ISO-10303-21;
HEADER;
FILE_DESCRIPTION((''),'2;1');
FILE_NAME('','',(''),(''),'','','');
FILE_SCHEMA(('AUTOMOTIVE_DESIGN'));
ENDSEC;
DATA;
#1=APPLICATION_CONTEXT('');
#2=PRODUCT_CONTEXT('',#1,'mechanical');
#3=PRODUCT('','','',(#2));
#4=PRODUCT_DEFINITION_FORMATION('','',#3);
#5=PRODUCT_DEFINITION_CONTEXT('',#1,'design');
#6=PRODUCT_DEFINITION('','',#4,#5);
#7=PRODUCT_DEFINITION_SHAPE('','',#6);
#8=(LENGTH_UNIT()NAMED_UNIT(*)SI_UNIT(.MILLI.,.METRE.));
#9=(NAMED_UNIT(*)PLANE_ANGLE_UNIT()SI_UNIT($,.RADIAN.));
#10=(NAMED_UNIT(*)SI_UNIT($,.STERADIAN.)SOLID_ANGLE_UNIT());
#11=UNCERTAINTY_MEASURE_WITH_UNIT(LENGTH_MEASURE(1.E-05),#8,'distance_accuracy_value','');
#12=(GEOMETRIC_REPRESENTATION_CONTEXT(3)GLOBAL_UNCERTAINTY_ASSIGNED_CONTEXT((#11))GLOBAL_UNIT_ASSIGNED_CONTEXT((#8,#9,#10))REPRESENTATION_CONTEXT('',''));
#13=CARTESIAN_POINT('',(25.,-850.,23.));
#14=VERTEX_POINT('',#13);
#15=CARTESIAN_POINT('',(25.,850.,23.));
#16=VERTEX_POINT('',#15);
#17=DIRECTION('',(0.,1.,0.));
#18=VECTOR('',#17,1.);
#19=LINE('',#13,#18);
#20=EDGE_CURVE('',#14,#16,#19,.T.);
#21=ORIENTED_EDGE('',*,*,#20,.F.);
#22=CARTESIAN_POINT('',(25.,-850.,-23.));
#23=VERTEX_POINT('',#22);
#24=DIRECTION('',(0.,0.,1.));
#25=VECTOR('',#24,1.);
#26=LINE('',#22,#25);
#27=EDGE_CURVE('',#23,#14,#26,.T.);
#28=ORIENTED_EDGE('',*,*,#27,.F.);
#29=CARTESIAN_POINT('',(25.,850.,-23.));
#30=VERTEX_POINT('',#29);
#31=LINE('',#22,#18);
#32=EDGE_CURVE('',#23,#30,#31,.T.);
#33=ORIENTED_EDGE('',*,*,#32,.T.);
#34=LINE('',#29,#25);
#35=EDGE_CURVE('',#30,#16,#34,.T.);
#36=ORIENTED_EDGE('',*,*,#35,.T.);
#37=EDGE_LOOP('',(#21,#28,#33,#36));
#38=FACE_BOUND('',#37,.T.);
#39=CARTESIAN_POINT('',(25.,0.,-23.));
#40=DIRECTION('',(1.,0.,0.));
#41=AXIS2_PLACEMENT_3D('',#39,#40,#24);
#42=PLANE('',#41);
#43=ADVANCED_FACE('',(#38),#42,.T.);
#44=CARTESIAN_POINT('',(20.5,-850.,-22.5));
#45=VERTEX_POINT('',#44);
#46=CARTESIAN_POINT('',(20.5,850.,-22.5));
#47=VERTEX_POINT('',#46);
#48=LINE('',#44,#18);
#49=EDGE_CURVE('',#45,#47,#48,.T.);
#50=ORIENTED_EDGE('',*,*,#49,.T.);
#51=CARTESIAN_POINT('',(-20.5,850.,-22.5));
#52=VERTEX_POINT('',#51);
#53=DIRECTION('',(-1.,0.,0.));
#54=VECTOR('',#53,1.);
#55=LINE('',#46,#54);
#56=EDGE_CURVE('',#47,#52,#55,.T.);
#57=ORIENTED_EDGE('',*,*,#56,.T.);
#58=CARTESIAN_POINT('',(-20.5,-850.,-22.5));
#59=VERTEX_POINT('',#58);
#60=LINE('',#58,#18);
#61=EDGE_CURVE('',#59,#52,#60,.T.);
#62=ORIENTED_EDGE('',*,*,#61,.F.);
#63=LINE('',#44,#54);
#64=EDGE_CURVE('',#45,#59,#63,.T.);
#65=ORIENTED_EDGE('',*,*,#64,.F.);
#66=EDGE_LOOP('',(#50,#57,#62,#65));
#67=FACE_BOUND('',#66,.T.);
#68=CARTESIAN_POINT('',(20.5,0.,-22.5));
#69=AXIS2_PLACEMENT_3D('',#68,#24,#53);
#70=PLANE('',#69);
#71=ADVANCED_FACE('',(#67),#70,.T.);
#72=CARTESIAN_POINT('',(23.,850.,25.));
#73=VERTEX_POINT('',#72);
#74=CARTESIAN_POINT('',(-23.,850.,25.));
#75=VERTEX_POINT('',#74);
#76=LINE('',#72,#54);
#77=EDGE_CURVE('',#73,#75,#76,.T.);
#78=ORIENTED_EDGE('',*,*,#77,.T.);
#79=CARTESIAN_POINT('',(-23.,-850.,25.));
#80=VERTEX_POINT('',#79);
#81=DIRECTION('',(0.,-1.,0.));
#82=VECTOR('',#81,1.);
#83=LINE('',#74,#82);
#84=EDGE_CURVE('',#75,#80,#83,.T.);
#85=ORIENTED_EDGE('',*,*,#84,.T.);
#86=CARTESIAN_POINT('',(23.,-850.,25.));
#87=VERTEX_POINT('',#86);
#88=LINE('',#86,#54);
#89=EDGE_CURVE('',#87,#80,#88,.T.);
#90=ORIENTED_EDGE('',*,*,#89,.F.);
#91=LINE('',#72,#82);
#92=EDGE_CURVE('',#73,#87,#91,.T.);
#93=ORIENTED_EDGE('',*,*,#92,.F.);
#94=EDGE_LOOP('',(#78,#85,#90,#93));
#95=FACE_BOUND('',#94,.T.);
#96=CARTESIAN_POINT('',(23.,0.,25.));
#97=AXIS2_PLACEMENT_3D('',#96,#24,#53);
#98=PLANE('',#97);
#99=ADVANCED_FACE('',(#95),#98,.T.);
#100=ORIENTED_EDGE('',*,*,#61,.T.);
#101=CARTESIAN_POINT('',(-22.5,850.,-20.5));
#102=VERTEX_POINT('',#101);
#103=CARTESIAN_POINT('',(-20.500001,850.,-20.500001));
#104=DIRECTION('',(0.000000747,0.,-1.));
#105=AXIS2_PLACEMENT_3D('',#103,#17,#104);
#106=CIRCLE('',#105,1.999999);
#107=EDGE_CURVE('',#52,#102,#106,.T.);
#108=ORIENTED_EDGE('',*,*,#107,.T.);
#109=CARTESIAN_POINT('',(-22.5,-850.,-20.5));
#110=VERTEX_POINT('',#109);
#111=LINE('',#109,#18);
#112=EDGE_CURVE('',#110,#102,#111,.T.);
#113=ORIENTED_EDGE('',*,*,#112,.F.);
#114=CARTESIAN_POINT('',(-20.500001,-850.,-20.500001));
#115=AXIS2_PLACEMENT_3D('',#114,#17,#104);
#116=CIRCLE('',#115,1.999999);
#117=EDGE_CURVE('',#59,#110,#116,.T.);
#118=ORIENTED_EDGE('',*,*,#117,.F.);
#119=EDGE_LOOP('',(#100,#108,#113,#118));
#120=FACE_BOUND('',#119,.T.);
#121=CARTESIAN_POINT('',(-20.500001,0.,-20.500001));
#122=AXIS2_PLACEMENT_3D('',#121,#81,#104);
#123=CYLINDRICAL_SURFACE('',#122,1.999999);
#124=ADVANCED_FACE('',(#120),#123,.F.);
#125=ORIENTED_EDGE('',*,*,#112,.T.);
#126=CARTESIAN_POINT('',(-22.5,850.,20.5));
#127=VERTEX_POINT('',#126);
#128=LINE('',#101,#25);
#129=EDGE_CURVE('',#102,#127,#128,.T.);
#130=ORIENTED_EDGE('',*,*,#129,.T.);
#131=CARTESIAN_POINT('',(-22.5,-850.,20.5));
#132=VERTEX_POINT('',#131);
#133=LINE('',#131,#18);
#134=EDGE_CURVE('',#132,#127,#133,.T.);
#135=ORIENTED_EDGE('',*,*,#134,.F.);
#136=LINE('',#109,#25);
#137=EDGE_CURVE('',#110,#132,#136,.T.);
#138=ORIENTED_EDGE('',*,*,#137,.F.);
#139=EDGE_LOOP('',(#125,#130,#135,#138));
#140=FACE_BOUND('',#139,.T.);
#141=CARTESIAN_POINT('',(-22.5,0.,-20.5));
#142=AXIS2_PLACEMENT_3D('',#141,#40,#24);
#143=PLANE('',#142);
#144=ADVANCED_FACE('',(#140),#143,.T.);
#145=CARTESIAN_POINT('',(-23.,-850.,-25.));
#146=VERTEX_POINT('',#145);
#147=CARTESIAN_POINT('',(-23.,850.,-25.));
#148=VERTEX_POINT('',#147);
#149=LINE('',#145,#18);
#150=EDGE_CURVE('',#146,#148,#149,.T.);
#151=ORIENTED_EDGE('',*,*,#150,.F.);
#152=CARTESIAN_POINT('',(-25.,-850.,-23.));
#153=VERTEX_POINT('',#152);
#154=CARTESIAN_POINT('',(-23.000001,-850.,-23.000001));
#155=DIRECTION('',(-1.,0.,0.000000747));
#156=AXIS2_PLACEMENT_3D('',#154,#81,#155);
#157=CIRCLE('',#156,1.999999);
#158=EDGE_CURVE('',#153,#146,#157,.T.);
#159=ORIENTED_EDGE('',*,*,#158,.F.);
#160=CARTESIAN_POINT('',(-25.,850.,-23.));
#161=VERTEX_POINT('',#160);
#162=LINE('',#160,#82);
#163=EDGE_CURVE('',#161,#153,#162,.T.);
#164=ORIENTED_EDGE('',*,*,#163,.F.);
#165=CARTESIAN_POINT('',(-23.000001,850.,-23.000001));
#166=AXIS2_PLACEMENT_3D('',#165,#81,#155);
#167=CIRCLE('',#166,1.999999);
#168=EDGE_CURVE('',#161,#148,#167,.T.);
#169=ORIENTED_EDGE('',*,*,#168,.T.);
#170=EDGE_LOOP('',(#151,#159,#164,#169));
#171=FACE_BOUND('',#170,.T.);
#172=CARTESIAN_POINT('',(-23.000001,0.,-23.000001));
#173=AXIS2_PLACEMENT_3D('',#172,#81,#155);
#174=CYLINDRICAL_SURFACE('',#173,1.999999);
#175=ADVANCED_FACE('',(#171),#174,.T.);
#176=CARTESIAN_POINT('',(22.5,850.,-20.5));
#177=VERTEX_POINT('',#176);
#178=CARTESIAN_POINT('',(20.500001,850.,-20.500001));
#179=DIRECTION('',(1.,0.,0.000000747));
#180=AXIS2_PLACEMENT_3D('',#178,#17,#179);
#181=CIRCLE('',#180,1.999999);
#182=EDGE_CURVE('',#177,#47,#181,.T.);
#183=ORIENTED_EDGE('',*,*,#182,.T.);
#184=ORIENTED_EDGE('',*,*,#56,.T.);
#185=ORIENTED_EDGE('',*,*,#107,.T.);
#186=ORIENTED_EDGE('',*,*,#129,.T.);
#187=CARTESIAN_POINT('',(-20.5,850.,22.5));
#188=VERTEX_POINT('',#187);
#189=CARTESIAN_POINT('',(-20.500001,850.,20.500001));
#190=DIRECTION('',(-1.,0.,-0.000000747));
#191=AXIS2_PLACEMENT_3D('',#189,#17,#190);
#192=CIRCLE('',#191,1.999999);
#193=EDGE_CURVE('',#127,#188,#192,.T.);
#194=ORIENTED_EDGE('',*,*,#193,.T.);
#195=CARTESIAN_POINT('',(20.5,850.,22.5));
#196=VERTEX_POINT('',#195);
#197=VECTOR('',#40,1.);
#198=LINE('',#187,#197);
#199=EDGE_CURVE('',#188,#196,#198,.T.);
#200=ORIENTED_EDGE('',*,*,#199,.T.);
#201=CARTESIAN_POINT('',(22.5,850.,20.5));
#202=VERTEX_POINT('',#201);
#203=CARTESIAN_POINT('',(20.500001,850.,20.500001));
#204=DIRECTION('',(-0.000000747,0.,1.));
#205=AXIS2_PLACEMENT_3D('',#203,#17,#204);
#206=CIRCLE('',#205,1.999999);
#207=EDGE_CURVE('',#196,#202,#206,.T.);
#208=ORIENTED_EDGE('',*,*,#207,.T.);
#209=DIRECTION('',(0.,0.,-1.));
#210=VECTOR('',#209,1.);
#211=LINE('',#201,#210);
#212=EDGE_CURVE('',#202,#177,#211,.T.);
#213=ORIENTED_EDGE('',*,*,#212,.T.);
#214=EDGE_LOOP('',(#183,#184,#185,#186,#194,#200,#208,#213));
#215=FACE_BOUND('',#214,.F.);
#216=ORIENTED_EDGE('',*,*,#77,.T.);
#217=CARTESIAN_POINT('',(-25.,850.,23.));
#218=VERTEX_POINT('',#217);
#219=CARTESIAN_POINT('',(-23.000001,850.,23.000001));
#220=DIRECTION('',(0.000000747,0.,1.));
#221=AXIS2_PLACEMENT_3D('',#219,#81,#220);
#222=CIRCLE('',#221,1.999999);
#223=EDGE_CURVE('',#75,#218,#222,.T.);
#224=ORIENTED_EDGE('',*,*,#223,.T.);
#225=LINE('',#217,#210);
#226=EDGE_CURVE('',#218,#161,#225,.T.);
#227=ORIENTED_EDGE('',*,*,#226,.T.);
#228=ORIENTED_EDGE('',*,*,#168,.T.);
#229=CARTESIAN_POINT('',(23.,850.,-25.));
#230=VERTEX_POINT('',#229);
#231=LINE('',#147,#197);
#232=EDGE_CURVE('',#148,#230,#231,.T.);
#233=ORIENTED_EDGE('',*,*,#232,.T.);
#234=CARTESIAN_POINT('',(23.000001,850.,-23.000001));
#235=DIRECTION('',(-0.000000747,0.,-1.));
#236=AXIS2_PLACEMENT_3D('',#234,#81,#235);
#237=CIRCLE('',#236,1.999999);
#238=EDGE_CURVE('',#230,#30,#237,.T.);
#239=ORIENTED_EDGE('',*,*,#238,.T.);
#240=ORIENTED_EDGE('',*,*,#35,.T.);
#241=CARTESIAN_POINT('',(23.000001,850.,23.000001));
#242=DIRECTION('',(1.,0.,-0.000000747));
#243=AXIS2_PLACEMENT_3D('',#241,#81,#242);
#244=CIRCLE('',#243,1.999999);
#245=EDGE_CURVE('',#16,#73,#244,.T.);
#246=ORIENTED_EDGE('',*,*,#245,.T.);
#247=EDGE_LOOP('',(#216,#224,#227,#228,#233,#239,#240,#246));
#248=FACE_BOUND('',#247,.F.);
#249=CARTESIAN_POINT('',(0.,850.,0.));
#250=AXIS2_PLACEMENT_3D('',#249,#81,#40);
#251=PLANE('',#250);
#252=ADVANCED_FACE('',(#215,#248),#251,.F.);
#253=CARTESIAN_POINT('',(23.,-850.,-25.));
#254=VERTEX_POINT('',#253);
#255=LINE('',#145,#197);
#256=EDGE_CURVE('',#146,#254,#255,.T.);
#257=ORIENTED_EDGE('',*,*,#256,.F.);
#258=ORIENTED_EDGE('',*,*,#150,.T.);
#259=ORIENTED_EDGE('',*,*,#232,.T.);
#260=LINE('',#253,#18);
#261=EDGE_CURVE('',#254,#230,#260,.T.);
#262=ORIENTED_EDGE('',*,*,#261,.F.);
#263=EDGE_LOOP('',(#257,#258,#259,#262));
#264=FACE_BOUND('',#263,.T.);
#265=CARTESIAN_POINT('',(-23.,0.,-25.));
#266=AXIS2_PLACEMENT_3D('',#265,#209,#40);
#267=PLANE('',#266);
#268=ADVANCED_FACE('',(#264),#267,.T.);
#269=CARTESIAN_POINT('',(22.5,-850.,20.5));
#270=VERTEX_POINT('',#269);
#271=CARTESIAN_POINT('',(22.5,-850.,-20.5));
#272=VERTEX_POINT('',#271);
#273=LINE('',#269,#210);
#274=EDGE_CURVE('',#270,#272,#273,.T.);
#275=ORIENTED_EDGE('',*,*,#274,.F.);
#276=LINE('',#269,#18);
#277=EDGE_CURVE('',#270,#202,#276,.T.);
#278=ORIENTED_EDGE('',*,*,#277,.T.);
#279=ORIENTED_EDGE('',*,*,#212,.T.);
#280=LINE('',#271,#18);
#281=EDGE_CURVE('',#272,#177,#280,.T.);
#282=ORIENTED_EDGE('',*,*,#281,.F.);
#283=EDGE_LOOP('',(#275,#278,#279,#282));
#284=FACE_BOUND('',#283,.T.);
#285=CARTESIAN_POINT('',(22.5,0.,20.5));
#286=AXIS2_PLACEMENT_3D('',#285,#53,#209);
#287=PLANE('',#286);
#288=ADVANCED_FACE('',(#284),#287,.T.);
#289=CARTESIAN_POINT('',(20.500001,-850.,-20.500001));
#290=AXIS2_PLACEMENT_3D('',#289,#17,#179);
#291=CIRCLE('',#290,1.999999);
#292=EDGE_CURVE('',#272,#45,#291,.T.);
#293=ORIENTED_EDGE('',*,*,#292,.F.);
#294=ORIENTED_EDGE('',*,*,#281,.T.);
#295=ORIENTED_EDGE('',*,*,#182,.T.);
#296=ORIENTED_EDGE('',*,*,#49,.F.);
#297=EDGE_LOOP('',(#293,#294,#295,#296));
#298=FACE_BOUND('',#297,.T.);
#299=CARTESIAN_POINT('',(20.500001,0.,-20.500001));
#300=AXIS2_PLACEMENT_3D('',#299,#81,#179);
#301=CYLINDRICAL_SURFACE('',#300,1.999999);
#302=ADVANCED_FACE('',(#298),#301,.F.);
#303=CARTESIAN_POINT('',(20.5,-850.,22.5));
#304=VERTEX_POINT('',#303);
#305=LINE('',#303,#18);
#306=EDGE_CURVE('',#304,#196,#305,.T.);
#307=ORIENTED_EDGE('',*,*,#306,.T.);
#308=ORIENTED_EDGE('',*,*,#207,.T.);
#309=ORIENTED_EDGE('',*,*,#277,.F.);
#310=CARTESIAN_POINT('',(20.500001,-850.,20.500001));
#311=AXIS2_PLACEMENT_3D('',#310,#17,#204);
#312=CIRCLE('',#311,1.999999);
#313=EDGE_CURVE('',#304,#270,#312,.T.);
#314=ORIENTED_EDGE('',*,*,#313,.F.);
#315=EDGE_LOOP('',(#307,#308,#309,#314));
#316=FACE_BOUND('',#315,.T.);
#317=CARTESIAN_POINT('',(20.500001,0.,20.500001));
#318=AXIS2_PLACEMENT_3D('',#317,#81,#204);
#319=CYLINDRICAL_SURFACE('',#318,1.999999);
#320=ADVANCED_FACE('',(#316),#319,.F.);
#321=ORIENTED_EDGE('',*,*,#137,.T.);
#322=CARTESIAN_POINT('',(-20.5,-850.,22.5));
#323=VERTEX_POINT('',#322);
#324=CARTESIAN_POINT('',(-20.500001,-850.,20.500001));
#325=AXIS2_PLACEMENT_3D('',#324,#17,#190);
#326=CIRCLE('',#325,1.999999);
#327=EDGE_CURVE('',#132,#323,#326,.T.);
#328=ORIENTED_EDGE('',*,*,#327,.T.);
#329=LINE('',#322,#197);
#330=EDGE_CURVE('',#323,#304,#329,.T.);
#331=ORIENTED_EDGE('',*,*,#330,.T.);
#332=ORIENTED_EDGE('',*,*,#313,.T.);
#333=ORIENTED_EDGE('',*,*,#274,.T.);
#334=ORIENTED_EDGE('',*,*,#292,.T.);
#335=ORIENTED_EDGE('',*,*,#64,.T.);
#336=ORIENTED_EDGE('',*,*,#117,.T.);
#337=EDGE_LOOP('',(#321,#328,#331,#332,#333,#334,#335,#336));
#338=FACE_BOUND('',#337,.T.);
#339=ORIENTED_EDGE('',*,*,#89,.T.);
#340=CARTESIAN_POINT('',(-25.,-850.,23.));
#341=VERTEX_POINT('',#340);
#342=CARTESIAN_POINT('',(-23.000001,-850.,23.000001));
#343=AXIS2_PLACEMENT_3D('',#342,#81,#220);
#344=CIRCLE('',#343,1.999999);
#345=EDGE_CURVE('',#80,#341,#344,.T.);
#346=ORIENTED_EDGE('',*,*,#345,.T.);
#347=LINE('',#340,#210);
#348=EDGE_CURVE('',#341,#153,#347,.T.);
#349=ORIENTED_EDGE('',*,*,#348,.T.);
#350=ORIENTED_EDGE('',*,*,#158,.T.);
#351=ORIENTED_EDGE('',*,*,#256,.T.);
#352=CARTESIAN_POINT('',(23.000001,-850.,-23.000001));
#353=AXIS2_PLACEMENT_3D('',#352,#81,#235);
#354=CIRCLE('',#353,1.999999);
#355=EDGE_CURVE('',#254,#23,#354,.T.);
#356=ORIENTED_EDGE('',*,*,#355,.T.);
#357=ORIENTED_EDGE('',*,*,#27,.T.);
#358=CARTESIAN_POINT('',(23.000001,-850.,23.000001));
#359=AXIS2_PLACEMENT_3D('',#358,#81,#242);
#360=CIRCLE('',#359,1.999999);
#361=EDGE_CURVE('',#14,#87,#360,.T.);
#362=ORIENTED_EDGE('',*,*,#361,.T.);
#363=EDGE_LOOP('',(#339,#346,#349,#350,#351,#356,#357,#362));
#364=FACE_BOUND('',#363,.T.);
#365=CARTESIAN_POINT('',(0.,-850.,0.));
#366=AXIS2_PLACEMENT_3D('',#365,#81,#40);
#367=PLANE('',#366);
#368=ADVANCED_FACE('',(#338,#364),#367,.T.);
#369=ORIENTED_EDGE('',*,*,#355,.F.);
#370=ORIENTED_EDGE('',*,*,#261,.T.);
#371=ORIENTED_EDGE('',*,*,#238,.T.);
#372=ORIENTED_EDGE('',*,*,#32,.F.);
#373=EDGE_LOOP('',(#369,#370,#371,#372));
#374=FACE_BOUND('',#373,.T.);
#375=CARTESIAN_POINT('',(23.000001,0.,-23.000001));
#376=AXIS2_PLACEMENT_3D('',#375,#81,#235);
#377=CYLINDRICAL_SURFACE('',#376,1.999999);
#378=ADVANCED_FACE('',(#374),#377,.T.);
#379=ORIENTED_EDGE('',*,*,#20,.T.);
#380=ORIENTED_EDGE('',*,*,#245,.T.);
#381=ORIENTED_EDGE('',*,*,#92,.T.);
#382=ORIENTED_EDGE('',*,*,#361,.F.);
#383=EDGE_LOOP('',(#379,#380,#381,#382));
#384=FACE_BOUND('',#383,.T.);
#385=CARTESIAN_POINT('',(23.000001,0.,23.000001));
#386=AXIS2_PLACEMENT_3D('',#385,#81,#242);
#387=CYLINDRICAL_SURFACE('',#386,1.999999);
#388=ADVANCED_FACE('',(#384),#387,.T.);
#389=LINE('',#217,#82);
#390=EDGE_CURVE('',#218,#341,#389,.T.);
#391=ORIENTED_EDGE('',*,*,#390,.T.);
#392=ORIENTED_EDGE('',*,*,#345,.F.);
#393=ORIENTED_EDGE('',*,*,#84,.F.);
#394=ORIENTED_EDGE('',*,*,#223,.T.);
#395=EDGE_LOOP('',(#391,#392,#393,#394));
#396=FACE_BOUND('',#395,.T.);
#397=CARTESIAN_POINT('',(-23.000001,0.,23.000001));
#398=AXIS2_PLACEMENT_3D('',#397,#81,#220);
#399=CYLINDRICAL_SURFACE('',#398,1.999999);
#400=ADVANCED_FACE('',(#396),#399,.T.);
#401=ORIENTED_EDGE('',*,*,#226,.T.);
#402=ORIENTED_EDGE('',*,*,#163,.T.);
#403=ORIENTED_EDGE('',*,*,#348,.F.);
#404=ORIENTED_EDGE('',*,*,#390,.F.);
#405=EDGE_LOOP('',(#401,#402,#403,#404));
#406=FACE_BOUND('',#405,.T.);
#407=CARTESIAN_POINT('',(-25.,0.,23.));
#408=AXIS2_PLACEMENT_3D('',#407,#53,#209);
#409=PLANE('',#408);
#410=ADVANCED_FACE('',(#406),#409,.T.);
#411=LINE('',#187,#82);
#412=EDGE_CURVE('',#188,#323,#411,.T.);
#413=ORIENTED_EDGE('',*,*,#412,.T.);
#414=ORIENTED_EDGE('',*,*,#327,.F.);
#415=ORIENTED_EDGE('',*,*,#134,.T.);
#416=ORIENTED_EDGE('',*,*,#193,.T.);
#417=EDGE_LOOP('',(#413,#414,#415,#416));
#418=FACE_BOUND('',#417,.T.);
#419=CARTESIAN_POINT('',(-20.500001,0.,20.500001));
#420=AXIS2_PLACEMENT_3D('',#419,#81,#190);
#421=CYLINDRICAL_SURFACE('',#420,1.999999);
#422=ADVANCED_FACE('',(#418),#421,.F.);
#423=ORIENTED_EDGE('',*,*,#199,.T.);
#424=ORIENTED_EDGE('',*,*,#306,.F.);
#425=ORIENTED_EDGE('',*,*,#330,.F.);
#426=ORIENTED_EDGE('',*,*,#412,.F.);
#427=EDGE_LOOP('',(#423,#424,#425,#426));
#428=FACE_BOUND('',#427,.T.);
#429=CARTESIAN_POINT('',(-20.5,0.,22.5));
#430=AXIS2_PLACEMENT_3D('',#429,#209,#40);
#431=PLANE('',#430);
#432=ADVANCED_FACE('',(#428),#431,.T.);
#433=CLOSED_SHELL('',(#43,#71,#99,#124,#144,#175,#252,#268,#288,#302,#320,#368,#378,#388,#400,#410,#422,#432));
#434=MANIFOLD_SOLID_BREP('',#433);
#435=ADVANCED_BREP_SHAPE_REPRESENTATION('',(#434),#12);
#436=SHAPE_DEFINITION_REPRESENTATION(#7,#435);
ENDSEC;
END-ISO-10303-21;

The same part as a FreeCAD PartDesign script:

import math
import FreeCAD as App
import Part
import Sketcher
from FreeCAD import Vector

doc = App.newDocument("Part")
params = doc.addObject("Spreadsheet::Sheet", "Params")
for row, (alias, value) in enumerate([
    ("sketch1_radius", "1.999999 mm"),
    ("sketch1_width", "46 mm"),
    ("sketch1_width2", "41 mm"),
    ("pad1_length", "1700 mm"),
], start=1):
    params.set(f"A{row}", alias)
    params.set(f"B{row}", "=" + value)
    params.setAlias(f"B{row}", alias)

body = doc.addObject("PartDesign::Body", "Body")

sketch1 = body.newObject("Sketcher::SketchObject", "Sketch")
sketch1.AttachmentSupport = (doc.getObject("XZ_Plane"), [""])
sketch1.MapMode = "FlatFace"
sketch1.addGeometry(Part.ArcOfCircle(Part.Circle(Vector(23, 23, 0), Vector(0, 0, 1), 2), math.radians(0), math.radians(90)), False)
sketch1.addGeometry(Part.LineSegment(Vector(23, 25, 0), Vector(-23, 25, 0)), False)
sketch1.addGeometry(Part.ArcOfCircle(Part.Circle(Vector(-23, 23, 0), Vector(0, 0, 1), 2), math.radians(90), math.radians(180)), False)
sketch1.addGeometry(Part.LineSegment(Vector(-25, 23, 0), Vector(-25, -23, 0)), False)
sketch1.addGeometry(Part.ArcOfCircle(Part.Circle(Vector(-23, -23, 0), Vector(0, 0, 1), 2), math.radians(180), math.radians(270)), False)
sketch1.addGeometry(Part.LineSegment(Vector(-23, -25, 0), Vector(23, -25, 0)), False)
sketch1.addGeometry(Part.ArcOfCircle(Part.Circle(Vector(23, -23, 0), Vector(0, 0, 1), 2), math.radians(-90), math.radians(0)), False)
sketch1.addGeometry(Part.LineSegment(Vector(25, -23, 0), Vector(25, 23, 0)), False)
sketch1.addGeometry(Part.ArcOfCircle(Part.Circle(Vector(-20.5, 20.5, 0), Vector(0, 0, 1), 2), math.radians(90), math.radians(180)), False)
sketch1.addGeometry(Part.LineSegment(Vector(-20.5, 22.5, 0), Vector(20.5, 22.5, 0)), False)
sketch1.addGeometry(Part.ArcOfCircle(Part.Circle(Vector(20.5, 20.5, 0), Vector(0, 0, 1), 2), math.radians(0), math.radians(90)), False)
sketch1.addGeometry(Part.LineSegment(Vector(22.5, 20.5, 0), Vector(22.5, -20.5, 0)), False)
sketch1.addGeometry(Part.ArcOfCircle(Part.Circle(Vector(20.5, -20.5, 0), Vector(0, 0, 1), 2), math.radians(-90), math.radians(0)), False)
sketch1.addGeometry(Part.LineSegment(Vector(20.5, -22.5, 0), Vector(-20.5, -22.5, 0)), False)
sketch1.addGeometry(Part.ArcOfCircle(Part.Circle(Vector(-20.5, -20.5, 0), Vector(0, 0, 1), 2), math.radians(180), math.radians(270)), False)
sketch1.addGeometry(Part.LineSegment(Vector(-22.5, -20.5, 0), Vector(-22.5, 20.5, 0)), False)
sketch1.addConstraint(Sketcher.Constraint("Tangent", 0, 2, 1, 1))
sketch1.addConstraint(Sketcher.Constraint("Tangent", 1, 2, 2, 1))
sketch1.addConstraint(Sketcher.Constraint("Tangent", 2, 2, 3, 1))
sketch1.addConstraint(Sketcher.Constraint("Tangent", 3, 2, 4, 1))
sketch1.addConstraint(Sketcher.Constraint("Tangent", 4, 2, 5, 1))
sketch1.addConstraint(Sketcher.Constraint("Tangent", 5, 2, 6, 1))
sketch1.addConstraint(Sketcher.Constraint("Tangent", 6, 2, 7, 1))
sketch1.addConstraint(Sketcher.Constraint("Tangent", 7, 2, 0, 1))
sketch1.addConstraint(Sketcher.Constraint("Tangent", 8, 1, 9, 1))
sketch1.addConstraint(Sketcher.Constraint("Tangent", 9, 2, 10, 2))
sketch1.addConstraint(Sketcher.Constraint("Tangent", 10, 1, 11, 1))
sketch1.addConstraint(Sketcher.Constraint("Tangent", 11, 2, 12, 2))
sketch1.addConstraint(Sketcher.Constraint("Tangent", 12, 1, 13, 1))
sketch1.addConstraint(Sketcher.Constraint("Tangent", 13, 2, 14, 2))
sketch1.addConstraint(Sketcher.Constraint("Tangent", 14, 1, 15, 1))
sketch1.addConstraint(Sketcher.Constraint("Tangent", 15, 2, 8, 2))
sketch1.addConstraint(Sketcher.Constraint("Horizontal", 1))
sketch1.addConstraint(Sketcher.Constraint("Vertical", 3))
sketch1.addConstraint(Sketcher.Constraint("Horizontal", 5))
sketch1.addConstraint(Sketcher.Constraint("Vertical", 7))
sketch1.addConstraint(Sketcher.Constraint("Horizontal", 9))
sketch1.addConstraint(Sketcher.Constraint("Vertical", 11))
sketch1.addConstraint(Sketcher.Constraint("Horizontal", 13))
sketch1.addConstraint(Sketcher.Constraint("Vertical", 15))
sketch1.addConstraint(Sketcher.Constraint("Equal", 0, 2))
sketch1.addConstraint(Sketcher.Constraint("Equal", 2, 4))
sketch1.addConstraint(Sketcher.Constraint("Equal", 4, 6))
sketch1.addConstraint(Sketcher.Constraint("Equal", 6, 8))
sketch1.addConstraint(Sketcher.Constraint("Equal", 8, 10))
sketch1.addConstraint(Sketcher.Constraint("Equal", 10, 12))
sketch1.addConstraint(Sketcher.Constraint("Equal", 12, 14))
sketch1.addConstraint(Sketcher.Constraint("Symmetric", 0, 3, 4, 3, -1, 1))
sketch1.addConstraint(Sketcher.Constraint("Symmetric", 8, 3, 12, 3, -1, 1))
sketch1.addConstraint(Sketcher.Constraint("Equal", 5, 3))
sketch1.addConstraint(Sketcher.Constraint("Equal", 13, 11))
sketch1.addConstraint(Sketcher.Constraint("Radius", 0, 1.999999))
sketch1.addConstraint(Sketcher.Constraint("DistanceX", 1, 2, 1, 1, 46.0))
sketch1.addConstraint(Sketcher.Constraint("DistanceX", 9, 1, 9, 2, 41.0))
sketch1.setExpression("Constraints[35]", "Params.sketch1_radius")
sketch1.setExpression("Constraints[36]", "Params.sketch1_width")
sketch1.setExpression("Constraints[37]", "Params.sketch1_width2")
pad1 = body.newObject("PartDesign::Pad", "Pad")
pad1.Profile = sketch1
pad1.setExpression("Length", "Params.pad1_length")
pad1.Midplane = True

doc.recompute()
